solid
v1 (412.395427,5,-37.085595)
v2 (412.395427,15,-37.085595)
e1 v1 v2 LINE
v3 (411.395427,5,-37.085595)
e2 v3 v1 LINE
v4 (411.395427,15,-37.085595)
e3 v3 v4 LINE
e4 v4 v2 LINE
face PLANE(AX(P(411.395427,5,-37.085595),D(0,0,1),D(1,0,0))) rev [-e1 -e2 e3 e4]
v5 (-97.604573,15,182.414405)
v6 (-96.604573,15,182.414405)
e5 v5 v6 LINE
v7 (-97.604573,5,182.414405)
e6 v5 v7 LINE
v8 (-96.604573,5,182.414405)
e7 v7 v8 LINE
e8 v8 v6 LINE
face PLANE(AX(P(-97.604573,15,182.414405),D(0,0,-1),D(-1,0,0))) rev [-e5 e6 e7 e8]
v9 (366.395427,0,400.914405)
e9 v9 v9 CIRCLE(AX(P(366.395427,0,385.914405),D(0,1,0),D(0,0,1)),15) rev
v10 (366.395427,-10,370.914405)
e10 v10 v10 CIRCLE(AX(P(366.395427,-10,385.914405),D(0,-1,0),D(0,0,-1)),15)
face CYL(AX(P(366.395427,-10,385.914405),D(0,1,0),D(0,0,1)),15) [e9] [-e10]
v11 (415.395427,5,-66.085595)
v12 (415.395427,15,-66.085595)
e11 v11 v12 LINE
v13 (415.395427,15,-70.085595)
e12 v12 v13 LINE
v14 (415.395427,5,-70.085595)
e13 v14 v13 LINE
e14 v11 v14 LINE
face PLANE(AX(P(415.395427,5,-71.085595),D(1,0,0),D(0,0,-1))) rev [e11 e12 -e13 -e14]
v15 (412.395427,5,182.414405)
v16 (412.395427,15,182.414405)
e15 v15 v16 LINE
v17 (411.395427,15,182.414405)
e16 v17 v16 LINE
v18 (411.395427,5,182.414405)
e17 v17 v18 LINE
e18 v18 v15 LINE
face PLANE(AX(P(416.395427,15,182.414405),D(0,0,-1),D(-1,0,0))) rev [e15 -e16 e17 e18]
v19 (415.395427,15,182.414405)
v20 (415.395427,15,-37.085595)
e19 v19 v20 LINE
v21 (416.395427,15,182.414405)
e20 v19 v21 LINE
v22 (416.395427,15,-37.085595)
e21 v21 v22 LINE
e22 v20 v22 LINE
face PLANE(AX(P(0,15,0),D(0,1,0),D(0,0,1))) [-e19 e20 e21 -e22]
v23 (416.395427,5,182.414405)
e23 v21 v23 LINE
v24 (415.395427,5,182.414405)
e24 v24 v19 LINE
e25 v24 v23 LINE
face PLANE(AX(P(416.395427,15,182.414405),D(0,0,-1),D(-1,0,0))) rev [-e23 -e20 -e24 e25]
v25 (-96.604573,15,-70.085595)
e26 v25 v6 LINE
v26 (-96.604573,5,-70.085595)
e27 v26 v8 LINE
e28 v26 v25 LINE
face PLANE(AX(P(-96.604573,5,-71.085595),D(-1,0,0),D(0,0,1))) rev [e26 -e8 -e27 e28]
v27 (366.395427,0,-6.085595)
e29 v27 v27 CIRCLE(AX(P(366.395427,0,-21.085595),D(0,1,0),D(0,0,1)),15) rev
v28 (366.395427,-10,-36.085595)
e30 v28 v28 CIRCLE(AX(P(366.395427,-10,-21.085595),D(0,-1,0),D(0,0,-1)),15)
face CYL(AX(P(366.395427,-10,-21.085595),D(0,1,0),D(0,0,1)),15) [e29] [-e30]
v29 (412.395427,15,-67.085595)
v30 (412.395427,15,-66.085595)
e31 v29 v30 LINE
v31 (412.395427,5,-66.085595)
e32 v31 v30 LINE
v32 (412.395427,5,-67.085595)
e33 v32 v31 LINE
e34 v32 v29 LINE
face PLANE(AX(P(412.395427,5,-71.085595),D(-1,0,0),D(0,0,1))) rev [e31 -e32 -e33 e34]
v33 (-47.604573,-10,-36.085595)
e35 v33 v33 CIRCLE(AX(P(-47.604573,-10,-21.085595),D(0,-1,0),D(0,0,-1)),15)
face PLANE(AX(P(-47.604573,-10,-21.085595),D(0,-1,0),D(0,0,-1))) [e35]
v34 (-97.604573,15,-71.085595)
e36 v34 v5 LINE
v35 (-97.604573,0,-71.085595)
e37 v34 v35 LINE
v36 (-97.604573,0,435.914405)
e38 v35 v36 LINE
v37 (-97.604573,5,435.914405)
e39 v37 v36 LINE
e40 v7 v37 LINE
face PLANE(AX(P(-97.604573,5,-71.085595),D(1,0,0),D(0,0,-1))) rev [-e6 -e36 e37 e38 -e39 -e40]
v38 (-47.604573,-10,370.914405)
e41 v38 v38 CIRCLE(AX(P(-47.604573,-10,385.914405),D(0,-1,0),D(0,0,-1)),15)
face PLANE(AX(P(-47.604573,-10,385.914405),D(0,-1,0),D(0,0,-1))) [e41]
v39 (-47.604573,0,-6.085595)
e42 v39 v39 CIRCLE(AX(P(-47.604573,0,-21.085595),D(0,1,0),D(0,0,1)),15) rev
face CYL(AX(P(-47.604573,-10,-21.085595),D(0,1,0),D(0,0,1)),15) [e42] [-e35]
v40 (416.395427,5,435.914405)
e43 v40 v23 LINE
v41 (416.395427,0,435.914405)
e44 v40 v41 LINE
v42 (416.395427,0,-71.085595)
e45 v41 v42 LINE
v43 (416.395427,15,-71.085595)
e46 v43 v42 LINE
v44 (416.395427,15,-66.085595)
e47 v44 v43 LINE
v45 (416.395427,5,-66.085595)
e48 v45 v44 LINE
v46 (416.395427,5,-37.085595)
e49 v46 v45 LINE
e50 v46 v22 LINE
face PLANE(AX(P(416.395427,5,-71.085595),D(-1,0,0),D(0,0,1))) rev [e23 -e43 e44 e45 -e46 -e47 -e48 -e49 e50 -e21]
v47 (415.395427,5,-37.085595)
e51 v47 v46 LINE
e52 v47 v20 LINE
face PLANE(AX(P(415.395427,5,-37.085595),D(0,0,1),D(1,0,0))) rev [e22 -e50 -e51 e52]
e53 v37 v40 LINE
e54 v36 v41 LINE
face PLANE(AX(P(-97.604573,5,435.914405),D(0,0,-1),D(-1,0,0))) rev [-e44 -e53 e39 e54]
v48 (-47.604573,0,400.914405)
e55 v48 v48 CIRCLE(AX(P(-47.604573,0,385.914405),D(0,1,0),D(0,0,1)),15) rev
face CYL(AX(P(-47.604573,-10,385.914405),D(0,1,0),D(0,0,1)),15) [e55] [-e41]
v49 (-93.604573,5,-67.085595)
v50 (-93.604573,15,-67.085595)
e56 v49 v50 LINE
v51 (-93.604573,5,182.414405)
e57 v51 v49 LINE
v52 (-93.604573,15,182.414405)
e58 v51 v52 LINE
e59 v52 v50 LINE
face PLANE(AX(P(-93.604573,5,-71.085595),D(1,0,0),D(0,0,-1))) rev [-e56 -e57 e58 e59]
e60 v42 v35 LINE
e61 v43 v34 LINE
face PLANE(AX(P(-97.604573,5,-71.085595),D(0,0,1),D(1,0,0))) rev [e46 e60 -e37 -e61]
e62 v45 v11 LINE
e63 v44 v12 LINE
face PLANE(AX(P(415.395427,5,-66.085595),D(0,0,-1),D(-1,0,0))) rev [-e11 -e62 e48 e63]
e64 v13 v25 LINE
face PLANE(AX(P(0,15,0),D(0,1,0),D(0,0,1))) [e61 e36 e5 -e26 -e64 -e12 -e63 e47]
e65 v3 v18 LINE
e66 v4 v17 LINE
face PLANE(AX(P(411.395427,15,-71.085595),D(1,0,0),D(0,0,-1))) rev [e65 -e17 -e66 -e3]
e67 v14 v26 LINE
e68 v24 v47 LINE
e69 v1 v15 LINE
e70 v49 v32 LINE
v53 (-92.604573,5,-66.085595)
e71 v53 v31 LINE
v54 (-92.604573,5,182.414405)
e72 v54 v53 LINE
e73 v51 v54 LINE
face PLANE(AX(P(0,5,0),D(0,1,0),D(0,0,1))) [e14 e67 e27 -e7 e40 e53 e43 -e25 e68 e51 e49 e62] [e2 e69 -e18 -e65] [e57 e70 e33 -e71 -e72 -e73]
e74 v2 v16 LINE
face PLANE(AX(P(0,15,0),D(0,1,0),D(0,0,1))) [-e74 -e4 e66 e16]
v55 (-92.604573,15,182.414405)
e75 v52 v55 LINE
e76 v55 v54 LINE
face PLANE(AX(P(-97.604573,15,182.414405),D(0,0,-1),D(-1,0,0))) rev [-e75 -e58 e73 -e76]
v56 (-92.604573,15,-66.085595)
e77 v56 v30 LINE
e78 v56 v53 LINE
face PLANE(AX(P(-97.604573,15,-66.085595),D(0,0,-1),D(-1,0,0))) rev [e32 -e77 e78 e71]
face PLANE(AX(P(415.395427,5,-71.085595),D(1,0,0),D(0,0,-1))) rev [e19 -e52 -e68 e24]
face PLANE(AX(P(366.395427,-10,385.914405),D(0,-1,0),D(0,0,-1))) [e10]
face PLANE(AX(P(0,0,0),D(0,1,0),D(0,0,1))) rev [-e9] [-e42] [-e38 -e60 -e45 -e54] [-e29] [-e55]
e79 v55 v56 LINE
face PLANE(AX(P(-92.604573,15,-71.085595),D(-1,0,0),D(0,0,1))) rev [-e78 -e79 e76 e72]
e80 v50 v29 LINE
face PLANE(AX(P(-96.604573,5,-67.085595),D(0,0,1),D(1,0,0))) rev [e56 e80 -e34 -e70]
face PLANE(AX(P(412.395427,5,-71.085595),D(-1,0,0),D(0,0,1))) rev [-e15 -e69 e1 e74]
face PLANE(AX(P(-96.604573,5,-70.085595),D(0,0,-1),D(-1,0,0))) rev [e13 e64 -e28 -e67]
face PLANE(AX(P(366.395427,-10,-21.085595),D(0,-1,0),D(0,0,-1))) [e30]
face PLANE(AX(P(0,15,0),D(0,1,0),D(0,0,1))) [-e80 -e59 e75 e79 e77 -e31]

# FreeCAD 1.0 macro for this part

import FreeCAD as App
import Part
import Sketcher
Q = App.Units.Quantity


def add_polygon(sketch, points):
    """Adds a closed chain of lines whose ends are joined by coincident constraints."""
    first, n = sketch.GeometryCount, len(points)
    for a, b in zip(points, points[1:] + points[:1]):
        sketch.addGeometry(Part.LineSegment(App.Vector(*a, 0), App.Vector(*b, 0)), False)
    for i in range(n):
        sketch.addConstraint(Sketcher.Constraint("Coincident", first + i, 2, first + (i + 1) % n, 1))

doc = App.newDocument("Part")
body = doc.addObject("PartDesign::Body", "Body")

# Sketch on XZ plane
sketch1 = doc.addObject("Sketcher::SketchObject", "Sketch")
body.addObject(sketch1)
sketch1.AttachmentSupport = (doc.XZ_Plane, [""])
sketch1.MapMode = "FlatFace"
add_polygon(sketch1, [(-97.604573, -71.085595), (-97.604573, 435.914405), (416.395427, 435.914405), (416.395427, -71.085595)])  # lines 0-3
sketch1.addConstraint(Sketcher.Constraint("Vertical", 0))
sketch1.addConstraint(Sketcher.Constraint("Horizontal", 1))
sketch1.addConstraint(Sketcher.Constraint("Vertical", 2))
sketch1.addConstraint(Sketcher.Constraint("Horizontal", 3))
sketch1.addConstraint(Sketcher.Constraint("DistanceX", 1, 1, 1, 2, Q("514 mm")))
sketch1.addConstraint(Sketcher.Constraint("DistanceY", 0, 1, 0, 2, Q("507 mm")))
sketch1.addConstraint(Sketcher.Constraint("DistanceX", 0, 2, -1, 1, Q("97.604573 mm")))
sketch1.addConstraint(Sketcher.Constraint("DistanceY", -1, 1, 0, 2, Q("435.914405 mm")))
pad1 = doc.addObject("PartDesign::Pad", "Pad")
body.addObject(pad1)
pad1.Profile = sketch1
pad1.Length = 5
pad1.Reversed = True

# Sketch on XZ plane
sketch2 = doc.addObject("Sketcher::SketchObject", "Sketch001")
body.addObject(sketch2)
sketch2.AttachmentSupport = (doc.XZ_Plane, [""])
sketch2.MapMode = "FlatFace"
sketch2.AttachmentOffset = App.Placement(App.Vector(0, 0, -5), App.Rotation())
add_polygon(sketch2, [(-97.604573, -71.085595), (-97.604573, 182.414405), (-92.604573, 182.414405), (-92.604573, -71.085595)])  # lines 0-3
sketch2.addConstraint(Sketcher.Constraint("Vertical", 0))
sketch2.addConstraint(Sketcher.Constraint("Horizontal", 1))
sketch2.addConstraint(Sketcher.Constraint("Vertical", 2))
sketch2.addConstraint(Sketcher.Constraint("Horizontal", 3))
sketch2.addConstraint(Sketcher.Constraint("DistanceX", 1, 1, 1, 2, Q("5 mm")))
sketch2.addConstraint(Sketcher.Constraint("DistanceY", 0, 1, 0, 2, Q("253.5 mm")))
sketch2.addConstraint(Sketcher.Constraint("DistanceX", 0, 2, -1, 1, Q("97.604573 mm")))
sketch2.addConstraint(Sketcher.Constraint("DistanceY", -1, 1, 0, 2, Q("182.414405 mm")))
pad2 = doc.addObject("PartDesign::Pad", "Pad001")
body.addObject(pad2)
pad2.Profile = sketch2
pad2.Length = 10
pad2.Reversed = True

# Sketch on XZ plane
sketch3 = doc.addObject("Sketcher::SketchObject", "Sketch002")
body.addObject(sketch3)
sketch3.AttachmentSupport = (doc.XZ_Plane, [""])
sketch3.MapMode = "FlatFace"
sketch3.AttachmentOffset = App.Placement(App.Vector(0, 0, -5), App.Rotation())
add_polygon(sketch3, [(411.395427, -71.085595), (411.395427, 182.414405), (416.395427, 182.414405), (416.395427, -71.085595)])  # lines 0-3
sketch3.addConstraint(Sketcher.Constraint("Vertical", 0))
sketch3.addConstraint(Sketcher.Constraint("Horizontal", 1))
sketch3.addConstraint(Sketcher.Constraint("Vertical", 2))
sketch3.addConstraint(Sketcher.Constraint("Horizontal", 3))
sketch3.addConstraint(Sketcher.Constraint("DistanceX", 1, 1, 1, 2, Q("5 mm")))
sketch3.addConstraint(Sketcher.Constraint("DistanceY", 0, 1, 0, 2, Q("253.5 mm")))
sketch3.addConstraint(Sketcher.Constraint("DistanceX", -1, 1, 0, 2, Q("411.395427 mm")))
sketch3.addConstraint(Sketcher.Constraint("DistanceY", -1, 1, 0, 2, Q("182.414405 mm")))
pad3 = doc.addObject("PartDesign::Pad", "Pad002")
body.addObject(pad3)
pad3.Profile = sketch3
pad3.Length = 10
pad3.Reversed = True

# Sketch on XZ plane
sketch4 = doc.addObject("Sketcher::SketchObject", "Sketch003")
body.addObject(sketch4)
sketch4.AttachmentSupport = (doc.XZ_Plane, [""])
sketch4.MapMode = "FlatFace"
sketch4.AttachmentOffset = App.Placement(App.Vector(0, 0, -15), App.Rotation())
add_polygon(sketch4, [(-96.604573, -71.085595), (-96.604573, 182.414405), (-93.604573, 182.414405), (-93.604573, -71.085595)])  # lines 0-3
sketch4.addConstraint(Sketcher.Constraint("Vertical", 0))
sketch4.addConstraint(Sketcher.Constraint("Horizontal", 1))
sketch4.addConstraint(Sketcher.Constraint("Vertical", 2))
sketch4.addConstraint(Sketcher.Constraint("Horizontal", 3))
sketch4.addConstraint(Sketcher.Constraint("DistanceX", 1, 1, 1, 2, Q("3 mm")))
sketch4.addConstraint(Sketcher.Constraint("DistanceY", 0, 1, 0, 2, Q("253.5 mm")))
sketch4.addConstraint(Sketcher.Constraint("DistanceX", 0, 2, -1, 1, Q("96.604573 mm")))
sketch4.addConstraint(Sketcher.Constraint("DistanceY", -1, 1, 0, 2, Q("182.414405 mm")))
pocket1 = doc.addObject("PartDesign::Pocket", "Pocket")
body.addObject(pocket1)
pocket1.Profile = sketch4
pocket1.Length = 10
pocket1.Reversed = True

# Sketch on XZ plane
sketch5 = doc.addObject("Sketcher::SketchObject", "Sketch004")
body.addObject(sketch5)
sketch5.AttachmentSupport = (doc.XZ_Plane, [""])
sketch5.MapMode = "FlatFace"
sketch5.AttachmentOffset = App.Placement(App.Vector(0, 0, -15), App.Rotation())
add_polygon(sketch5, [(412.395427, -71.085595), (412.395427, 182.414405), (415.395427, 182.414405), (415.395427, -71.085595)])  # lines 0-3
sketch5.addConstraint(Sketcher.Constraint("Vertical", 0))
sketch5.addConstraint(Sketcher.Constraint("Horizontal", 1))
sketch5.addConstraint(Sketcher.Constraint("Vertical", 2))
sketch5.addConstraint(Sketcher.Constraint("Horizontal", 3))
sketch5.addConstraint(Sketcher.Constraint("DistanceX", 1, 1, 1, 2, Q("3 mm")))
sketch5.addConstraint(Sketcher.Constraint("DistanceY", 0, 1, 0, 2, Q("253.5 mm")))
sketch5.addConstraint(Sketcher.Constraint("DistanceX", -1, 1, 0, 2, Q("412.395427 mm")))
sketch5.addConstraint(Sketcher.Constraint("DistanceY", -1, 1, 0, 2, Q("182.414405 mm")))
pocket2 = doc.addObject("PartDesign::Pocket", "Pocket001")
body.addObject(pocket2)
pocket2.Profile = sketch5
pocket2.Length = 10
pocket2.Reversed = True

# Sketch on XZ plane
sketch6 = doc.addObject("Sketcher::SketchObject", "Sketch005")
body.addObject(sketch6)
sketch6.AttachmentSupport = (doc.XZ_Plane, [""])
sketch6.MapMode = "FlatFace"
sketch6.AttachmentOffset = App.Placement(App.Vector(0, 0, -5), App.Rotation())
add_polygon(sketch6, [(-97.604573, -71.085595), (-97.604573, -66.085595), (416.395427, -66.085595), (416.395427, -71.085595)])  # lines 0-3
sketch6.addConstraint(Sketcher.Constraint("Vertical", 0))
sketch6.addConstraint(Sketcher.Constraint("Horizontal", 1))
sketch6.addConstraint(Sketcher.Constraint("Vertical", 2))
sketch6.addConstraint(Sketcher.Constraint("Horizontal", 3))
sketch6.addConstraint(Sketcher.Constraint("DistanceX", 1, 1, 1, 2, Q("514 mm")))
sketch6.addConstraint(Sketcher.Constraint("DistanceY", 0, 1, 0, 2, Q("5 mm")))
sketch6.addConstraint(Sketcher.Constraint("DistanceX", 0, 2, -1, 1, Q("97.604573 mm")))
sketch6.addConstraint(Sketcher.Constraint("DistanceY", 0, 2, -1, 1, Q("66.085595 mm")))
pad4 = doc.addObject("PartDesign::Pad", "Pad003")
body.addObject(pad4)
pad4.Profile = sketch6
pad4.Length = 10
pad4.Reversed = True

# Sketch on XZ plane
sketch7 = doc.addObject("Sketcher::SketchObject", "Sketch006")
body.addObject(sketch7)
sketch7.AttachmentSupport = (doc.XZ_Plane, [""])
sketch7.MapMode = "FlatFace"
sketch7.AttachmentOffset = App.Placement(App.Vector(0, 0, -15), App.Rotation())
add_polygon(sketch7, [(-96.604573, -70.085595), (-96.604573, -67.085595), (415.395427, -67.085595), (415.395427, -70.085595)])  # lines 0-3
sketch7.addConstraint(Sketcher.Constraint("Vertical", 0))
sketch7.addConstraint(Sketcher.Constraint("Horizontal", 1))
sketch7.addConstraint(Sketcher.Constraint("Vertical", 2))
sketch7.addConstraint(Sketcher.Constraint("Horizontal", 3))
sketch7.addConstraint(Sketcher.Constraint("DistanceX", 1, 1, 1, 2, Q("512 mm")))
sketch7.addConstraint(Sketcher.Constraint("DistanceY", 0, 1, 0, 2, Q("3 mm")))
sketch7.addConstraint(Sketcher.Constraint("DistanceX", 0, 2, -1, 1, Q("96.604573 mm")))
sketch7.addConstraint(Sketcher.Constraint("DistanceY", 0, 2, -1, 1, Q("67.085595 mm")))
pocket3 = doc.addObject("PartDesign::Pocket", "Pocket002")
body.addObject(pocket3)
pocket3.Profile = sketch7
pocket3.Length = 10
pocket3.Reversed = True

# Sketch on XZ plane
sketch8 = doc.addObject("Sketcher::SketchObject", "Sketch007")
body.addObject(sketch8)
sketch8.AttachmentSupport = (doc.XZ_Plane, [""])
sketch8.MapMode = "FlatFace"
sketch8.AttachmentOffset = App.Placement(App.Vector(0, 0, -15), App.Rotation())
add_polygon(sketch8, [(412.395427, -67.085595), (412.395427, -66.085595), (415.395427, -66.085595), (415.395427, -67.085595)])  # lines 0-3
add_polygon(sketch8, [(-96.604573, -67.085595), (-96.604573, -66.085595), (-93.604573, -66.085595), (-93.604573, -67.085595)])  # lines 4-7
sketch8.addConstraint(Sketcher.Constraint("Vertical", 0))
sketch8.addConstraint(Sketcher.Constraint("Horizontal", 1))
sketch8.addConstraint(Sketcher.Constraint("Vertical", 2))
sketch8.addConstraint(Sketcher.Constraint("Horizontal", 3))
sketch8.addConstraint(Sketcher.Constraint("Vertical", 4))
sketch8.addConstraint(Sketcher.Constraint("Horizontal", 5))
sketch8.addConstraint(Sketcher.Constraint("Vertical", 6))
sketch8.addConstraint(Sketcher.Constraint("Horizontal", 7))
sketch8.addConstraint(Sketcher.Constraint("Horizontal", 1, 2, 4, 2))
sketch8.addConstraint(Sketcher.Constraint("Horizontal", 3, 2, 6, 2))
sketch8.addConstraint(Sketcher.Constraint("Equal", 3, 5))
sketch8.addConstraint(Sketcher.Constraint("DistanceX", 1, 1, 1, 2, Q("3 mm")))
sketch8.addConstraint(Sketcher.Constraint("DistanceY", 0, 1, 0, 2, Q("1 mm")))
sketch8.addConstraint(Sketcher.Constraint("DistanceX", 4, 2, 0, 2, Q("509 mm")))
sketch8.addConstraint(Sketcher.Constraint("DistanceX", -1, 1, 0, 2, Q("412.395427 mm")))
sketch8.addConstraint(Sketcher.Constraint("DistanceY", 0, 2, -1, 1, Q("66.085595 mm")))
pocket4 = doc.addObject("PartDesign::Pocket", "Pocket003")
body.addObject(pocket4)
pocket4.Profile = sketch8
pocket4.Length = 10
pocket4.Reversed = True

# Sketch on XZ plane
sketch9 = doc.addObject("Sketcher::SketchObject", "Sketch008")
body.addObject(sketch9)
sketch9.AttachmentSupport = (doc.XZ_Plane, [""])
sketch9.MapMode = "FlatFace"
sketch9.addGeometry(Part.Circle(App.Vector(-47.604573, 385.914405, 0), App.Vector(0, 0, 1), 15), False)
sketch9.addGeometry(Part.Circle(App.Vector(366.395427, 385.914405, 0), App.Vector(0, 0, 1), 15), False)
sketch9.addGeometry(Part.Circle(App.Vector(366.395427, -21.085595, 0), App.Vector(0, 0, 1), 15), False)
sketch9.addGeometry(Part.Circle(App.Vector(-47.604573, -21.085595, 0), App.Vector(0, 0, 1), 15), False)
sketch9.addConstraint(Sketcher.Constraint("Equal", 0, 1))
sketch9.addConstraint(Sketcher.Constraint("Equal", 1, 2))
sketch9.addConstraint(Sketcher.Constraint("Equal", 2, 3))
sketch9.addConstraint(Sketcher.Constraint("Horizontal", 0, 3, 1, 3))
sketch9.addConstraint(Sketcher.Constraint("Horizontal", 2, 3, 3, 3))
sketch9.addConstraint(Sketcher.Constraint("Vertical", 1, 3, 2, 3))
sketch9.addConstraint(Sketcher.Constraint("Vertical", 0, 3, 3, 3))
sketch9.addConstraint(Sketcher.Constraint("Diameter", 0, Q("30 mm")))
sketch9.addConstraint(Sketcher.Constraint("DistanceX", 0, 3, 1, 3, Q("414 mm")))
sketch9.addConstraint(Sketcher.Constraint("DistanceY", 2, 3, 1, 3, Q("407 mm")))
sketch9.addConstraint(Sketcher.Constraint("DistanceX", 0, 3, -1, 1, Q("47.604573 mm")))
sketch9.addConstraint(Sketcher.Constraint("DistanceY", -1, 1, 0, 3, Q("385.914405 mm")))
pad5 = doc.addObject("PartDesign::Pad", "Pad004")
body.addObject(pad5)
pad5.Profile = sketch9
pad5.Length = 10

# Sketch on XZ plane
sketch10 = doc.addObject("Sketcher::SketchObject", "Sketch009")
body.addObject(sketch10)
sketch10.AttachmentSupport = (doc.XZ_Plane, [""])
sketch10.MapMode = "FlatFace"
sketch10.AttachmentOffset = App.Placement(App.Vector(0, 0, -15), App.Rotation())
add_polygon(sketch10, [(411.395427, -66.085595), (411.395427, -37.085595), (412.395427, -37.085595), (412.395427, -66.085595)])  # lines 0-3
add_polygon(sketch10, [(415.395427, -66.085595), (415.395427, -37.085595), (416.395427, -37.085595), (416.395427, -66.085595)])  # lines 4-7
sketch10.addConstraint(Sketcher.Constraint("Vertical", 0))
sketch10.addConstraint(Sketcher.Constraint("Horizontal", 1))
sketch10.addConstraint(Sketcher.Constraint("Vertical", 2))
sketch10.addConstraint(Sketcher.Constraint("Horizontal", 3))
sketch10.addConstraint(Sketcher.Constraint("Vertical", 4))
sketch10.addConstraint(Sketcher.Constraint("Horizontal", 5))
sketch10.addConstraint(Sketcher.Constraint("Vertical", 6))
sketch10.addConstraint(Sketcher.Constraint("Horizontal", 7))
sketch10.addConstraint(Sketcher.Constraint("Horizontal", 1, 2, 4, 2))
sketch10.addConstraint(Sketcher.Constraint("Horizontal", 3, 2, 6, 2))
sketch10.addConstraint(Sketcher.Constraint("Equal", 3, 5))
sketch10.addConstraint(Sketcher.Constraint("DistanceX", 1, 1, 1, 2, Q("1 mm")))
sketch10.addConstraint(Sketcher.Constraint("DistanceY", 0, 1, 0, 2, Q("29 mm")))
sketch10.addConstraint(Sketcher.Constraint("DistanceX", 1, 2, 4, 2, Q("3 mm")))
sketch10.addConstraint(Sketcher.Constraint("DistanceX", -1, 1, 0, 2, Q("411.395427 mm")))
sketch10.addConstraint(Sketcher.Constraint("DistanceY", 0, 2, -1, 1, Q("37.085595 mm")))
pocket5 = doc.addObject("PartDesign::Pocket", "Pocket004")
body.addObject(pocket5)
pocket5.Profile = sketch10
pocket5.Length = 10
pocket5.Reversed = True

doc.recompute()
